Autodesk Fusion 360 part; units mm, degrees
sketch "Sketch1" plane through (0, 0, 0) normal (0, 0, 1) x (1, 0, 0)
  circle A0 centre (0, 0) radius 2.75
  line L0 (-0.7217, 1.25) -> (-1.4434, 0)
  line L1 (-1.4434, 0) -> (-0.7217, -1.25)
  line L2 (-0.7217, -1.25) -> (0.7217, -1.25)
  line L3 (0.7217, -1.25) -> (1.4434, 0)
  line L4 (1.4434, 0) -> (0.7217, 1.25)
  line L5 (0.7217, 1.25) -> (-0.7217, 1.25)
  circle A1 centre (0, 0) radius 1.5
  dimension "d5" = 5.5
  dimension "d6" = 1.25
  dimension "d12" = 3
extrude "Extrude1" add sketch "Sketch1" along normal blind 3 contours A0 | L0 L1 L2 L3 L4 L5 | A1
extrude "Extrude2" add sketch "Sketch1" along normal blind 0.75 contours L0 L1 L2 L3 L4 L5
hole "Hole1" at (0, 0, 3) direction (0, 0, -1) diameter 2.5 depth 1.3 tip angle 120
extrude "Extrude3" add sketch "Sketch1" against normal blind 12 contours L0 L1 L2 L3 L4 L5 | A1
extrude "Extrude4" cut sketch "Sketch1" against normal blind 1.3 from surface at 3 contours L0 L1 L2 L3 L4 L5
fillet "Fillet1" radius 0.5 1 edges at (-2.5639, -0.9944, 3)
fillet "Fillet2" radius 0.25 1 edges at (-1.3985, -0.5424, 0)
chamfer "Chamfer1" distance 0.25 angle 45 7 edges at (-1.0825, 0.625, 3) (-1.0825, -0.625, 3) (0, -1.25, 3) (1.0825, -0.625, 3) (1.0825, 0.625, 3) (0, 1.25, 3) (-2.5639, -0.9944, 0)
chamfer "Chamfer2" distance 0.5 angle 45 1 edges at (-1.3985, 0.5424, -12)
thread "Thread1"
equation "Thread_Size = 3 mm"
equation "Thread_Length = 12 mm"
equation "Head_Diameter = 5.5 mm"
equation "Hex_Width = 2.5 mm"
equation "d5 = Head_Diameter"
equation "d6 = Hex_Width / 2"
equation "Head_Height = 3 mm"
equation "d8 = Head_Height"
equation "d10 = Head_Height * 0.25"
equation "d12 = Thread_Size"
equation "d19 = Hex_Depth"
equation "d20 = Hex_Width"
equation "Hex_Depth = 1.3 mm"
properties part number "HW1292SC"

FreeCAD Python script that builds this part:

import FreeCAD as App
import Part
import Sketcher
Q = App.Units.Quantity


def edges_at(feature, points):
    """Names of the edges that pass closest to the given points."""
    edges = feature.Shape.Edges
    near = lambda p: min(range(len(edges)), key=lambda i: edges[i].distToShape(Part.Vertex(*p))[0])
    return sorted({f"Edge{near(p) + 1}" for p in points})


def add_polygon(sketch, points):
    """Adds a closed chain of lines whose ends are joined by coincident constraints."""
    first, n = sketch.GeometryCount, len(points)
    for a, b in zip(points, points[1:] + points[:1]):
        sketch.addGeometry(Part.LineSegment(App.Vector(*a, 0), App.Vector(*b, 0)), False)
    for i in range(n):
        sketch.addConstraint(Sketcher.Constraint("Coincident", first + i, 2, first + (i + 1) % n, 1))

doc = App.newDocument("Part")
body = doc.addObject("PartDesign::Body", "Body")

sketch1 = body.newObject("Sketcher::SketchObject", "Sketch")
sketch1.AttachmentSupport = (doc.getObject("XY_Plane"), [""])
sketch1.MapMode = "FlatFace"
sketch1.addGeometry(Part.Circle(App.Vector(0, 0, 0), App.Vector(0, 0, 1), 2.8), False)
sketch1.addConstraint([
    Sketcher.Constraint("Coincident", 0, 3, -1, 1),
    Sketcher.Constraint("Diameter", 0, 5.5),
])
pad1 = body.newObject("PartDesign::Pad", "Pad")
pad1.Profile = sketch1
pad1.Length = 3

sketch2 = body.newObject("Sketcher::SketchObject", "Sketch001")
sketch2.AttachmentSupport = (doc.getObject("XY_Plane"), [""])
sketch2.MapMode = "FlatFace"
add_polygon(sketch2, [(0.7, 1.2), (-0.7, 1.2), (-1.4, 0), (-0.7, -1.2), (0.7, -1.2), (1.4, 0)])
sketch2.addConstraint([
    Sketcher.Constraint("Horizontal", 0),
    Sketcher.Constraint("Horizontal", 3),
    Sketcher.Constraint("Symmetric", 0, 2, 3, 2, -1, 1),
    Sketcher.Constraint("Symmetric", 1, 2, 4, 2, -1, 1),
    Sketcher.Constraint("PointOnObject", 1, 2, -1),
    Sketcher.Constraint("Parallel", 2, 5),
    Sketcher.Constraint("Vertical", 0, 2, 2, 2),
    Sketcher.Constraint("DistanceY", -1, 1, 0, 2, 1.25),
    Sketcher.Constraint("Angle", 1, Q("-120.0004 deg")),
    Sketcher.Constraint("DistanceX", 0, 2, 0, 1, 1.4434),
])
pad2 = body.newObject("PartDesign::Pad", "Pad001")
pad2.Profile = sketch2
pad2.Length = 0.75

sketch3 = body.newObject("Sketcher::SketchObject", "Sketch002")
sketch3.AttachmentSupport = (doc.getObject("XY_Plane"), [""])
sketch3.MapMode = "FlatFace"
sketch3.AttachmentOffset = App.Placement(App.Vector(0, 0, 3), App.Rotation())
sketch3.addGeometry(Part.Circle(App.Vector(0, 0, 0), App.Vector(0, 0, 1), 1.2), False)
sketch3.addConstraint([
    Sketcher.Constraint("Coincident", 0, 3, -1, 1),
    Sketcher.Constraint("Diameter", 0, 2.5),
])
doc.recompute()
hole = body.newObject("PartDesign::Hole", "Hole")
hole.Profile = sketch3
hole.ThreadType = "None"
hole.Diameter = 2.5
hole.DepthType = "Dimension"
hole.Depth = 1.3
hole.DrillPoint = "Angled"
hole.DrillPointAngle = 120

sketch4 = body.newObject("Sketcher::SketchObject", "Sketch003")
sketch4.AttachmentSupport = (doc.getObject("XY_Plane"), [""])
sketch4.MapMode = "FlatFace"
sketch4.addGeometry(Part.Circle(App.Vector(0, 0, 0), App.Vector(0, 0, 1), 1.5), False)
sketch4.addConstraint([
    Sketcher.Constraint("Coincident", 0, 3, -1, 1),
    Sketcher.Constraint("Diameter", 0, 3.0),
])
pad3 = body.newObject("PartDesign::Pad", "Pad002")
pad3.Profile = sketch4
pad3.Length = 12
pad3.Reversed = True

sketch5 = body.newObject("Sketcher::SketchObject", "Sketch004")
sketch5.AttachmentSupport = (doc.getObject("XY_Plane"), [""])
sketch5.MapMode = "FlatFace"
sketch5.AttachmentOffset = App.Placement(App.Vector(0, 0, 3), App.Rotation())
add_polygon(sketch5, [(0.7, 1.2), (-0.7, 1.2), (-1.4, 0), (-0.7, -1.2), (0.7, -1.2), (1.4, 0)])
sketch5.addConstraint([
    Sketcher.Constraint("Horizontal", 0),
    Sketcher.Constraint("Horizontal", 3),
    Sketcher.Constraint("Symmetric", 0, 2, 3, 2, -1, 1),
    Sketcher.Constraint("Symmetric", 1, 2, 4, 2, -1, 1),
    Sketcher.Constraint("PointOnObject", 1, 2, -1),
    Sketcher.Constraint("Parallel", 2, 5),
    Sketcher.Constraint("Vertical", 0, 2, 2, 2),
    Sketcher.Constraint("DistanceY", -1, 1, 0, 2, 1.25),
    Sketcher.Constraint("Angle", 1, Q("-120.0004 deg")),
    Sketcher.Constraint("DistanceX", 0, 2, 0, 1, 1.4434),
])
pocket1 = body.newObject("PartDesign::Pocket", "Pocket")
pocket1.Profile = sketch5
pocket1.Length = 1.3
doc.recompute()

fillet = body.newObject("PartDesign::Fillet", "Fillet")
fillet.Base = (pocket1, edges_at(pocket1, [(-2.564, -0.994, 3)]))
fillet.Radius = 0.5
doc.recompute()

fillet2 = body.newObject("PartDesign::Fillet", "Fillet001")
fillet2.Base = (fillet, edges_at(fillet, [(-1.399, -0.542, 0)]))
fillet2.Radius = 0.25
doc.recompute()

chamfer = body.newObject("PartDesign::Chamfer", "Chamfer")
chamfer.Base = (fillet2, edges_at(fillet2, [
    (-1.083, 0.625, 3),
    (-1.083, -0.625, 3),
    (0, -1.25, 3),
    (1.083, -0.625, 3),
    (1.083, 0.625, 3),
    (0, 1.25, 3),
    (-2.564, -0.994, 0),
]))
chamfer.Size = 0.25
doc.recompute()

chamfer2 = body.newObject("PartDesign::Chamfer", "Chamfer001")
chamfer2.Base = (chamfer, edges_at(chamfer, [(-1.399, 0.542, -12)]))
chamfer2.Size = 0.5

doc.recompute()
